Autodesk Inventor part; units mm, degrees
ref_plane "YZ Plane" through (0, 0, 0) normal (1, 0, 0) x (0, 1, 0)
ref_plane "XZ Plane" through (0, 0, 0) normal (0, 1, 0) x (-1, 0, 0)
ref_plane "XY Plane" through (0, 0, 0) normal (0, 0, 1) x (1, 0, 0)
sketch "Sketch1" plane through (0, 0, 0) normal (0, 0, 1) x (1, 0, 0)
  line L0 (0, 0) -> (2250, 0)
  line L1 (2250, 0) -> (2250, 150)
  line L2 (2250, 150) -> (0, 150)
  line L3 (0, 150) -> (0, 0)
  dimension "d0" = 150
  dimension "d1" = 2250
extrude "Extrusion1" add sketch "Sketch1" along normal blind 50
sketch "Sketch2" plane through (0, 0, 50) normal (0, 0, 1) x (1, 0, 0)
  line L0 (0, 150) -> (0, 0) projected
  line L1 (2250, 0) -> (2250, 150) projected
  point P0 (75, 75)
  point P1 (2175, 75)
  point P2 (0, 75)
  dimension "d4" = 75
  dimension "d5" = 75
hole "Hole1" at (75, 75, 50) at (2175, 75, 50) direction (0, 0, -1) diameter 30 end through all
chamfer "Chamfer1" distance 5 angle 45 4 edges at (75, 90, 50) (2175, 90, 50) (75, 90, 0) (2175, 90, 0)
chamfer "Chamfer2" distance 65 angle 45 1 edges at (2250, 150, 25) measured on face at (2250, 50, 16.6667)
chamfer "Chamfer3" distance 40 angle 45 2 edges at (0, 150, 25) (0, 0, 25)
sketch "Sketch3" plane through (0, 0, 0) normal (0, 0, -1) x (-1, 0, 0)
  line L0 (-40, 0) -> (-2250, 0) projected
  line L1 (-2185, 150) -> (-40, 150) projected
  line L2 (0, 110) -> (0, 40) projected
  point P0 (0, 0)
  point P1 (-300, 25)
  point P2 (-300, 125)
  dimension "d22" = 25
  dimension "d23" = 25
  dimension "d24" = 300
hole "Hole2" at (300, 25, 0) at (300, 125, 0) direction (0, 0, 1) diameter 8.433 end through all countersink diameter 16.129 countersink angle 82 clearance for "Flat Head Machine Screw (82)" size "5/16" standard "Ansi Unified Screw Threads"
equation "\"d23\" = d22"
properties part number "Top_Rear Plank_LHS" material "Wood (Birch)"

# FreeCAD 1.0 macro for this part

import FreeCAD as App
import Part
import Sketcher

V = App.Vector


def edges_at(feature, points):
    """Names of the edges that pass closest to the given points."""
    edges = feature.Shape.Edges
    near = lambda p: min(range(len(edges)), key=lambda i: edges[i].distToShape(Part.Vertex(*p))[0])
    return sorted({f"Edge{near(p) + 1}" for p in points})


def add_polygon(sketch, points):
    """Adds a closed chain of lines whose ends are joined by coincident constraints."""
    first, n = sketch.GeometryCount, len(points)
    for a, b in zip(points, points[1:] + points[:1]):
        sketch.addGeometry(Part.LineSegment(App.Vector(*a, 0), App.Vector(*b, 0)), False)
    for i in range(n):
        sketch.addConstraint(Sketcher.Constraint("Coincident", first + i, 2, first + (i + 1) % n, 1))

doc = App.newDocument("Part")
body = doc.addObject("PartDesign::Body", "Body")

sketch1 = doc.addObject("Sketcher::SketchObject", "Sketch")
body.addObject(sketch1)
sketch1.AttachmentSupport = (doc.XY_Plane, [""])
sketch1.MapMode = "FlatFace"
add_polygon(sketch1, [(0, 150), (0, 0), (2250, 0), (2250, 150)])
sketch1.addConstraint([
    Sketcher.Constraint("Vertical", 0),
    Sketcher.Constraint("Horizontal", 1),
    Sketcher.Constraint("Vertical", 2),
    Sketcher.Constraint("Horizontal", 3),
    Sketcher.Constraint("Coincident", 0, 2, -1, 1),
    Sketcher.Constraint("DistanceX", 1, 1, 1, 2, 2250.0),
    Sketcher.Constraint("DistanceY", 0, 2, 0, 1, 150.0),
])
pad1 = doc.addObject("PartDesign::Pad", "Pad")
body.addObject(pad1)
pad1.Profile = sketch1
pad1.Length = 50

sketch2 = doc.addObject("Sketcher::SketchObject", "Sketch001")
body.addObject(sketch2)
sketch2.AttachmentSupport = (doc.XY_Plane, [""])
sketch2.MapMode = "FlatFace"
sketch2.AttachmentOffset = App.Placement(V(0, 0, 50), App.Rotation())
sketch2.addGeometry([
    Part.Circle(V(75, 75, 0), V(0, 0, 1), 15),
    Part.Circle(V(2175, 75, 0), V(0, 0, 1), 15),
], False)
sketch2.addConstraint([
    Sketcher.Constraint("Equal", 0, 1),
    Sketcher.Constraint("Horizontal", 0, 3, 1, 3),
    Sketcher.Constraint("Diameter", 0, 30.0),
    Sketcher.Constraint("DistanceX", -1, 1, 0, 3, 75.0),
    Sketcher.Constraint("DistanceY", -1, 1, 0, 3, 75.0),
    Sketcher.Constraint("DistanceX", -1, 1, 1, 3, 2175.0),
])
doc.recompute()
hole = doc.addObject("PartDesign::Hole", "Hole")
body.addObject(hole)
hole.Profile = sketch2
hole.ThreadType = "None"
hole.Diameter = 30
hole.DepthType = "ThroughAll"
doc.recompute()

chamfer = doc.addObject("PartDesign::Chamfer", "Chamfer")
body.addObject(chamfer)
chamfer.Base = (hole, edges_at(hole, [
    (75, 90, 50),
    (2175, 90, 50),
    (75, 90, 0),
    (2175, 90, 0),
]))
chamfer.Size = 5
doc.recompute()

chamfer2 = doc.addObject("PartDesign::Chamfer", "Chamfer001")
body.addObject(chamfer2)
chamfer2.Base = (chamfer, edges_at(chamfer, [(2250, 150, 25)]))
chamfer2.Size = 65
doc.recompute()

chamfer3 = doc.addObject("PartDesign::Chamfer", "Chamfer002")
body.addObject(chamfer3)
chamfer3.Base = (chamfer2, edges_at(chamfer2, [(0, 150, 25), (0, 0, 25)]))
chamfer3.Size = 40

sketch3 = doc.addObject("Sketcher::SketchObject", "Sketch002")
body.addObject(sketch3)
sketch3.AttachmentSupport = (doc.XY_Plane, [""])
sketch3.MapMode = "FlatFace"
sketch3.addGeometry([
    Part.Circle(V(300, 25, 0), V(0, 0, 1), 4.2),
    Part.Circle(V(300, 125, 0), V(0, 0, 1), 4.2),
], False)
sketch3.addConstraint([
    Sketcher.Constraint("Equal", 0, 1),
    Sketcher.Constraint("Vertical", 0, 3, 1, 3),
    Sketcher.Constraint("Diameter", 0, 8.433),
    Sketcher.Constraint("DistanceX", -1, 1, 0, 3, 300.0),
    Sketcher.Constraint("DistanceY", -1, 1, 0, 3, 25.0),
    Sketcher.Constraint("DistanceY", -1, 1, 1, 3, 125.0),
])
doc.recompute()
hole2 = doc.addObject("PartDesign::Hole", "Hole001")
body.addObject(hole2)
hole2.Profile = sketch3
hole2.ThreadType = "None"
hole2.Diameter = 8.433
hole2.DepthType = "ThroughAll"
hole2.HoleCutType = "Countersink"
hole2.HoleCutDiameter = 16.129
hole2.HoleCutCountersinkAngle = 82
hole2.Reversed = True

doc.recompute()
